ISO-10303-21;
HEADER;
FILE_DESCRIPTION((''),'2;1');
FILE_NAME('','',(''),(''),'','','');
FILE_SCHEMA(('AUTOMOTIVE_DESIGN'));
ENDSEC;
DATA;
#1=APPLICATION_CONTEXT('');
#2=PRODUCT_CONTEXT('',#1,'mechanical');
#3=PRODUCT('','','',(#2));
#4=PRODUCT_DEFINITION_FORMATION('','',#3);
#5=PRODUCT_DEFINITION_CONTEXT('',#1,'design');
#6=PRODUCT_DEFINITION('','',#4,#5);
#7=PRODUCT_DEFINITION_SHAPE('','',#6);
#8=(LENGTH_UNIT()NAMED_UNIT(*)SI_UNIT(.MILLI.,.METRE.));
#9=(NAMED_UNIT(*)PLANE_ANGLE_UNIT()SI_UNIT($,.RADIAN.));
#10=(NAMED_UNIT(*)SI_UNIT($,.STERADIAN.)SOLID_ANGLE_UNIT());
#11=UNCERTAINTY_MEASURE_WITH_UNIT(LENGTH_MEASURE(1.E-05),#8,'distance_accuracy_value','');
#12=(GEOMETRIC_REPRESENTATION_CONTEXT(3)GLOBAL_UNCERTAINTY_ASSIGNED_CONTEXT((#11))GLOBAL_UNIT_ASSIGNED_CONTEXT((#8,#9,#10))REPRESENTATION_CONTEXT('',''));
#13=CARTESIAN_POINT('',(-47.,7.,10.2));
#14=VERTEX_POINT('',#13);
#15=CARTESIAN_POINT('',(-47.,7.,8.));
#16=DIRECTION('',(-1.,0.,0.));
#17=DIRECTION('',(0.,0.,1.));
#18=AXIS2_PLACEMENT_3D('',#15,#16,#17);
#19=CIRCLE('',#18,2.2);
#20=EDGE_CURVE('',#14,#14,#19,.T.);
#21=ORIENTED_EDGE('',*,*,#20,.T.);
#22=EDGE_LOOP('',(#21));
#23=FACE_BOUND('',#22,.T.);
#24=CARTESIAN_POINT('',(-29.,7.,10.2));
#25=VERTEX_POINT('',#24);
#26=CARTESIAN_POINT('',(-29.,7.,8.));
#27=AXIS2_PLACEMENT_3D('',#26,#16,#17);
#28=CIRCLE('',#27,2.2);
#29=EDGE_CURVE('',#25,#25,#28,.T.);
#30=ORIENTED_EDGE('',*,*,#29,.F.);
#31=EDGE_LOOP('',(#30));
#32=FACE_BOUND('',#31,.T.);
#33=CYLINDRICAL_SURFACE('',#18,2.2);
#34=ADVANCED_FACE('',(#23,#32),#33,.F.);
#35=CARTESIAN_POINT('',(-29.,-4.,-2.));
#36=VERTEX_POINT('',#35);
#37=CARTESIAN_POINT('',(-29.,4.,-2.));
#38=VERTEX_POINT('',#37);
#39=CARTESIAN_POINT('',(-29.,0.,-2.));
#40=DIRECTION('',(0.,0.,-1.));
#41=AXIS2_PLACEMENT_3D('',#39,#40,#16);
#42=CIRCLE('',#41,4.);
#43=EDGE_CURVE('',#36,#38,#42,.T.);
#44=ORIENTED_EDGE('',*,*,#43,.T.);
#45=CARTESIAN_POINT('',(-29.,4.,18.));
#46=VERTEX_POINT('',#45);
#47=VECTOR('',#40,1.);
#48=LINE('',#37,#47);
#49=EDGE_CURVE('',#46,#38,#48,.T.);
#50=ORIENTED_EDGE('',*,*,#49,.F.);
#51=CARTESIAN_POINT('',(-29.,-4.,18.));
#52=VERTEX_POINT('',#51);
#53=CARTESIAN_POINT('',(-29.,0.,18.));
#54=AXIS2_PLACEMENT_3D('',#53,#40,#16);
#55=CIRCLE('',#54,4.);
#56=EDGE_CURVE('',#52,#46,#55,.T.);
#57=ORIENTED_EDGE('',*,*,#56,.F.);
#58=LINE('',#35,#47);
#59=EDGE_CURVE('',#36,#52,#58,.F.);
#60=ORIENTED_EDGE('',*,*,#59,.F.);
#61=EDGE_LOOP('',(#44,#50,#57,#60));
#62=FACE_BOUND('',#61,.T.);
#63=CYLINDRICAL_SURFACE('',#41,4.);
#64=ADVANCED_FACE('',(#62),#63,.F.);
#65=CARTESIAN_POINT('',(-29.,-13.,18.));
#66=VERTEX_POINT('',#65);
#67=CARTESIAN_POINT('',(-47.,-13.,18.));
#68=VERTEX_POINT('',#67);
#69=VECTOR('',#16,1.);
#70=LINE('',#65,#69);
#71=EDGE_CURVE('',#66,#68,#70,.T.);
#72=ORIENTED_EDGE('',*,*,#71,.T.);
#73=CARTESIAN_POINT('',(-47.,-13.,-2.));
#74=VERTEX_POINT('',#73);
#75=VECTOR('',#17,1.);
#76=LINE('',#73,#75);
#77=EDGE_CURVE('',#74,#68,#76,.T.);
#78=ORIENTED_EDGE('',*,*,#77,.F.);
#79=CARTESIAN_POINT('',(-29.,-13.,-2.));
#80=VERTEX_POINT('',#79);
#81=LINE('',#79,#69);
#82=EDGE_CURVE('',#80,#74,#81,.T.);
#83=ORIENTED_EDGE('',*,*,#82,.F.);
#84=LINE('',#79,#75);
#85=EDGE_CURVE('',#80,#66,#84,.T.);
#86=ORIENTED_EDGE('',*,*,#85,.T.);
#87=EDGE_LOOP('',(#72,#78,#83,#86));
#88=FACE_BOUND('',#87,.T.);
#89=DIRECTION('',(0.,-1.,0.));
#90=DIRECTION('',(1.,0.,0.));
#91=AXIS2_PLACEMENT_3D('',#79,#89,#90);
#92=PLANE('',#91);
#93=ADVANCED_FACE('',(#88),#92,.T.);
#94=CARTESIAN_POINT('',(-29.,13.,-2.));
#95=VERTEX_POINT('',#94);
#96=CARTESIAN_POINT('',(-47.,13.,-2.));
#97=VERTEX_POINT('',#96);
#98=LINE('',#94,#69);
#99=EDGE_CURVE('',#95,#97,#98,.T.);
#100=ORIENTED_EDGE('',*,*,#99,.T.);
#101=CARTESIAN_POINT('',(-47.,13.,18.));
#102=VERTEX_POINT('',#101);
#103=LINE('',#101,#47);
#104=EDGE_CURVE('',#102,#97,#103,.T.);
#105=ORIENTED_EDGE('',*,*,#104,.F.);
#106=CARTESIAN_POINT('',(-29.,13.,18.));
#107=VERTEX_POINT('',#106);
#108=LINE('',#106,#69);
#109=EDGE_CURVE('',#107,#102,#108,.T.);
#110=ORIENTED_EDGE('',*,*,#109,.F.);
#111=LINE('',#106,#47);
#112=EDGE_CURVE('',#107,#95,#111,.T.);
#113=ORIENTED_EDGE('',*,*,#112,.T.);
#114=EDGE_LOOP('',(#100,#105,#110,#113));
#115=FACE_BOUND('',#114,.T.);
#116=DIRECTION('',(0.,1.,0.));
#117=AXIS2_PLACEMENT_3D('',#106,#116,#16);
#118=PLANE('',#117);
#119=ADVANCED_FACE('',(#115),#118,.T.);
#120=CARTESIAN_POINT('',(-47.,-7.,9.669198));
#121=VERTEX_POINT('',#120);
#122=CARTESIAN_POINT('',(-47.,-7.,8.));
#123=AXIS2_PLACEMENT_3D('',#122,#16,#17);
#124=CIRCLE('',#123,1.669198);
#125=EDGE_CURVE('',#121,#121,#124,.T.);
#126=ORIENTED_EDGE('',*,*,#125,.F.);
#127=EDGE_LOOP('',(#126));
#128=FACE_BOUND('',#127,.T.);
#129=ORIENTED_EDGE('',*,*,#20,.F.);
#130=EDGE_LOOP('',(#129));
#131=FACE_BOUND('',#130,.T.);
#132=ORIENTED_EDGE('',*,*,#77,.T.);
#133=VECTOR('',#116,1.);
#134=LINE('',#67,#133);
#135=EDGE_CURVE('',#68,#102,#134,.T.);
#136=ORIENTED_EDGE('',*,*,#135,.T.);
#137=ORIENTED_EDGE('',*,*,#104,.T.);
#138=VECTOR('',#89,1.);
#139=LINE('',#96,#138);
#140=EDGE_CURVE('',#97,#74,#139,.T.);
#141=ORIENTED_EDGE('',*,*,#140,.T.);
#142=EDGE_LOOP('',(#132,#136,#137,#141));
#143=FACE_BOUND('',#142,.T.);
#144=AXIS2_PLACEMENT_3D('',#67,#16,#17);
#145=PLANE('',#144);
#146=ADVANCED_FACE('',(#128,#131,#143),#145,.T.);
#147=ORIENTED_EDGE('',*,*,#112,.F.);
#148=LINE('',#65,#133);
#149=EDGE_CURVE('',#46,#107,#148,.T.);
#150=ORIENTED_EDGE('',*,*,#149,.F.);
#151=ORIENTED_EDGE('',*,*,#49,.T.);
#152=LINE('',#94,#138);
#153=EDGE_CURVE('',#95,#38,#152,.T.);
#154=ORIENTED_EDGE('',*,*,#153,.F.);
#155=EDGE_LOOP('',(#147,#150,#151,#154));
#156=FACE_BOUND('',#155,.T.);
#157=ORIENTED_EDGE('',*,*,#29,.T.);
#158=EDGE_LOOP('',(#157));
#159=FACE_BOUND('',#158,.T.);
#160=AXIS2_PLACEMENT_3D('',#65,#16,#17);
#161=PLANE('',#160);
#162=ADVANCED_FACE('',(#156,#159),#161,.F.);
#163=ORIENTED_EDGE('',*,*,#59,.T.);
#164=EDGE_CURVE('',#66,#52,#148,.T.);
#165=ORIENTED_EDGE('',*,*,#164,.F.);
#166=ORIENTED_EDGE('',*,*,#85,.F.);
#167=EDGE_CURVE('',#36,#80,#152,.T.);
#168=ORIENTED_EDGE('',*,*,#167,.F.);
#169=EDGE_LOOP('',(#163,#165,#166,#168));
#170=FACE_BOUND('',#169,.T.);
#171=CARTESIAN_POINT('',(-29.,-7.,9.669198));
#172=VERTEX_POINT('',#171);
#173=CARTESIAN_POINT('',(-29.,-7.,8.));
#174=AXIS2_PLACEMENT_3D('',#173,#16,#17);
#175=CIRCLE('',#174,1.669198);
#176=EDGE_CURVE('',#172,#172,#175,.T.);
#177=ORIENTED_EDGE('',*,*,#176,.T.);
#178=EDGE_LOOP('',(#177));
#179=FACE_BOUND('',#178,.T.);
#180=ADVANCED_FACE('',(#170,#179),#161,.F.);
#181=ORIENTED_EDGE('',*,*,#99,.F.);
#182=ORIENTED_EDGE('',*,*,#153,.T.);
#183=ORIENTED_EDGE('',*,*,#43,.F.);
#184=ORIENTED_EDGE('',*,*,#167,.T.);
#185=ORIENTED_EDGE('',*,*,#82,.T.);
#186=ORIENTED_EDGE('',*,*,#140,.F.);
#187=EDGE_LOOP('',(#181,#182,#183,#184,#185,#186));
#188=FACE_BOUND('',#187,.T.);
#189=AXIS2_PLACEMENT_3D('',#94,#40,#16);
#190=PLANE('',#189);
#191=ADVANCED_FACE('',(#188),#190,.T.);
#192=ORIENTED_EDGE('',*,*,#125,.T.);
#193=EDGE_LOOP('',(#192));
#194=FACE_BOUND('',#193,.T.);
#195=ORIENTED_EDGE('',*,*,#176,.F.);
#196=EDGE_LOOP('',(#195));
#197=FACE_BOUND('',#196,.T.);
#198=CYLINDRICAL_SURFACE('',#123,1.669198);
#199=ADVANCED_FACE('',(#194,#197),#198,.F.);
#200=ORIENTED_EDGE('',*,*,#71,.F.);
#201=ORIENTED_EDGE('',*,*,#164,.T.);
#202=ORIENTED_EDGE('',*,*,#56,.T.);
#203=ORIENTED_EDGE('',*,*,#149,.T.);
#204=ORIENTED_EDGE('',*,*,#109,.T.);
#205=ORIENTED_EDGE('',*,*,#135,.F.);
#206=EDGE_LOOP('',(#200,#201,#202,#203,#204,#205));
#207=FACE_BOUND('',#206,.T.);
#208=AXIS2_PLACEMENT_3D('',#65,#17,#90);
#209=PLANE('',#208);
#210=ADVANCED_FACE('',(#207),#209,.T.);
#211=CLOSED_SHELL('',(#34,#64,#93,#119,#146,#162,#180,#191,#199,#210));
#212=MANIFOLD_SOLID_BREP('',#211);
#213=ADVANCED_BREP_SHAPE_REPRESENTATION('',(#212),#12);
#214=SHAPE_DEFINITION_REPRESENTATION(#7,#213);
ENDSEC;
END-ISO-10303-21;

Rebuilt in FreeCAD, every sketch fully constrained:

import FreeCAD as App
import Part
import Sketcher

V = App.Vector


def add_polygon(sketch, points):
    """Adds a closed chain of lines whose ends are joined by coincident constraints."""
    first, n = sketch.GeometryCount, len(points)
    for a, b in zip(points, points[1:] + points[:1]):
        sketch.addGeometry(Part.LineSegment(App.Vector(*a, 0), App.Vector(*b, 0)), False)
    for i in range(n):
        sketch.addConstraint(Sketcher.Constraint("Coincident", first + i, 2, first + (i + 1) % n, 1))

doc = App.newDocument("Part")
body = doc.addObject("PartDesign::Body", "Body")

sketch1 = doc.addObject("Sketcher::SketchObject", "Sketch")
body.addObject(sketch1)
sketch1.AttachmentSupport = (doc.YZ_Plane, [""])
sketch1.MapMode = "FlatFace"
sketch1.AttachmentOffset = App.Placement(V(0, 0, -47), App.Rotation())
add_polygon(sketch1, [(13, 18), (13, -2), (-13, -2), (-13, 18)])
sketch1.addConstraint([
    Sketcher.Constraint("Vertical", 0),
    Sketcher.Constraint("Horizontal", 1),
    Sketcher.Constraint("Vertical", 2),
    Sketcher.Constraint("Horizontal", 3),
    Sketcher.Constraint("DistanceX", 1, 2, 1, 1, 26.0),
    Sketcher.Constraint("DistanceY", 0, 2, 0, 1, 20.0),
    Sketcher.Constraint("DistanceX", -1, 1, 0, 2, 13.0),
    Sketcher.Constraint("DistanceY", 0, 2, -1, 1, 2.0),
])
pad1 = doc.addObject("PartDesign::Pad", "Pad")
body.addObject(pad1)
pad1.Profile = sketch1
pad1.Length = 18

sketch2 = doc.addObject("Sketcher::SketchObject", "Sketch001")
body.addObject(sketch2)
sketch2.AttachmentSupport = (doc.YZ_Plane, [""])
sketch2.MapMode = "FlatFace"
sketch2.AttachmentOffset = App.Placement(V(0, 0, -47), App.Rotation())
sketch2.addGeometry(Part.Circle(V(7, 8, 0), V(0, 0, 1), 2.2), False)
sketch2.addConstraint([
    Sketcher.Constraint("Diameter", 0, 4.4),
    Sketcher.Constraint("DistanceX", -1, 1, 0, 3, 7.0),
    Sketcher.Constraint("DistanceY", -1, 1, 0, 3, 8.0),
])
doc.recompute()
hole = doc.addObject("PartDesign::Hole", "Hole")
body.addObject(hole)
hole.Profile = sketch2
hole.ThreadType = "None"
hole.Diameter = 4.4
hole.DepthType = "ThroughAll"
hole.Reversed = True

sketch3 = doc.addObject("Sketcher::SketchObject", "Sketch002")
body.addObject(sketch3)
sketch3.AttachmentSupport = (doc.YZ_Plane, [""])
sketch3.MapMode = "FlatFace"
sketch3.AttachmentOffset = App.Placement(V(0, 0, -47), App.Rotation())
sketch3.addGeometry(Part.Circle(V(-7, 8, 0), V(0, 0, 1), 1.669198), False)
sketch3.addConstraint([
    Sketcher.Constraint("DistanceX", 0, 3, -1, 1, 7.0),
    Sketcher.Constraint("DistanceY", -1, 1, 0, 3, 8.0),
    Sketcher.Constraint("Diameter", 0, 3.338395),
])
doc.recompute()
hole2 = doc.addObject("PartDesign::Hole", "Hole001")
body.addObject(hole2)
hole2.Profile = sketch3
hole2.ThreadType = "None"
hole2.Diameter = 3.338395
hole2.DepthType = "ThroughAll"
hole2.Reversed = True

sketch4 = doc.addObject("Sketcher::SketchObject", "Sketch003")
body.addObject(sketch4)
sketch4.AttachmentSupport = (doc.XY_Plane, [""])
sketch4.MapMode = "FlatFace"
sketch4.AttachmentOffset = App.Placement(V(0, 0, -2), App.Rotation())
sketch4.addGeometry(Part.Circle(V(-29, 0, 0), V(0, 0, 1), 4), False)
sketch4.addConstraint([
    Sketcher.Constraint("PointOnObject", 0, 3, -1),
    Sketcher.Constraint("Diameter", 0, 8.0),
    Sketcher.Constraint("DistanceX", 0, 3, -1, 1, 29.0),
])
doc.recompute()
hole3 = doc.addObject("PartDesign::Hole", "Hole002")
body.addObject(hole3)
hole3.Profile = sketch4
hole3.ThreadType = "None"
hole3.Diameter = 8
hole3.DepthType = "ThroughAll"
hole3.Reversed = True

doc.recompute()
